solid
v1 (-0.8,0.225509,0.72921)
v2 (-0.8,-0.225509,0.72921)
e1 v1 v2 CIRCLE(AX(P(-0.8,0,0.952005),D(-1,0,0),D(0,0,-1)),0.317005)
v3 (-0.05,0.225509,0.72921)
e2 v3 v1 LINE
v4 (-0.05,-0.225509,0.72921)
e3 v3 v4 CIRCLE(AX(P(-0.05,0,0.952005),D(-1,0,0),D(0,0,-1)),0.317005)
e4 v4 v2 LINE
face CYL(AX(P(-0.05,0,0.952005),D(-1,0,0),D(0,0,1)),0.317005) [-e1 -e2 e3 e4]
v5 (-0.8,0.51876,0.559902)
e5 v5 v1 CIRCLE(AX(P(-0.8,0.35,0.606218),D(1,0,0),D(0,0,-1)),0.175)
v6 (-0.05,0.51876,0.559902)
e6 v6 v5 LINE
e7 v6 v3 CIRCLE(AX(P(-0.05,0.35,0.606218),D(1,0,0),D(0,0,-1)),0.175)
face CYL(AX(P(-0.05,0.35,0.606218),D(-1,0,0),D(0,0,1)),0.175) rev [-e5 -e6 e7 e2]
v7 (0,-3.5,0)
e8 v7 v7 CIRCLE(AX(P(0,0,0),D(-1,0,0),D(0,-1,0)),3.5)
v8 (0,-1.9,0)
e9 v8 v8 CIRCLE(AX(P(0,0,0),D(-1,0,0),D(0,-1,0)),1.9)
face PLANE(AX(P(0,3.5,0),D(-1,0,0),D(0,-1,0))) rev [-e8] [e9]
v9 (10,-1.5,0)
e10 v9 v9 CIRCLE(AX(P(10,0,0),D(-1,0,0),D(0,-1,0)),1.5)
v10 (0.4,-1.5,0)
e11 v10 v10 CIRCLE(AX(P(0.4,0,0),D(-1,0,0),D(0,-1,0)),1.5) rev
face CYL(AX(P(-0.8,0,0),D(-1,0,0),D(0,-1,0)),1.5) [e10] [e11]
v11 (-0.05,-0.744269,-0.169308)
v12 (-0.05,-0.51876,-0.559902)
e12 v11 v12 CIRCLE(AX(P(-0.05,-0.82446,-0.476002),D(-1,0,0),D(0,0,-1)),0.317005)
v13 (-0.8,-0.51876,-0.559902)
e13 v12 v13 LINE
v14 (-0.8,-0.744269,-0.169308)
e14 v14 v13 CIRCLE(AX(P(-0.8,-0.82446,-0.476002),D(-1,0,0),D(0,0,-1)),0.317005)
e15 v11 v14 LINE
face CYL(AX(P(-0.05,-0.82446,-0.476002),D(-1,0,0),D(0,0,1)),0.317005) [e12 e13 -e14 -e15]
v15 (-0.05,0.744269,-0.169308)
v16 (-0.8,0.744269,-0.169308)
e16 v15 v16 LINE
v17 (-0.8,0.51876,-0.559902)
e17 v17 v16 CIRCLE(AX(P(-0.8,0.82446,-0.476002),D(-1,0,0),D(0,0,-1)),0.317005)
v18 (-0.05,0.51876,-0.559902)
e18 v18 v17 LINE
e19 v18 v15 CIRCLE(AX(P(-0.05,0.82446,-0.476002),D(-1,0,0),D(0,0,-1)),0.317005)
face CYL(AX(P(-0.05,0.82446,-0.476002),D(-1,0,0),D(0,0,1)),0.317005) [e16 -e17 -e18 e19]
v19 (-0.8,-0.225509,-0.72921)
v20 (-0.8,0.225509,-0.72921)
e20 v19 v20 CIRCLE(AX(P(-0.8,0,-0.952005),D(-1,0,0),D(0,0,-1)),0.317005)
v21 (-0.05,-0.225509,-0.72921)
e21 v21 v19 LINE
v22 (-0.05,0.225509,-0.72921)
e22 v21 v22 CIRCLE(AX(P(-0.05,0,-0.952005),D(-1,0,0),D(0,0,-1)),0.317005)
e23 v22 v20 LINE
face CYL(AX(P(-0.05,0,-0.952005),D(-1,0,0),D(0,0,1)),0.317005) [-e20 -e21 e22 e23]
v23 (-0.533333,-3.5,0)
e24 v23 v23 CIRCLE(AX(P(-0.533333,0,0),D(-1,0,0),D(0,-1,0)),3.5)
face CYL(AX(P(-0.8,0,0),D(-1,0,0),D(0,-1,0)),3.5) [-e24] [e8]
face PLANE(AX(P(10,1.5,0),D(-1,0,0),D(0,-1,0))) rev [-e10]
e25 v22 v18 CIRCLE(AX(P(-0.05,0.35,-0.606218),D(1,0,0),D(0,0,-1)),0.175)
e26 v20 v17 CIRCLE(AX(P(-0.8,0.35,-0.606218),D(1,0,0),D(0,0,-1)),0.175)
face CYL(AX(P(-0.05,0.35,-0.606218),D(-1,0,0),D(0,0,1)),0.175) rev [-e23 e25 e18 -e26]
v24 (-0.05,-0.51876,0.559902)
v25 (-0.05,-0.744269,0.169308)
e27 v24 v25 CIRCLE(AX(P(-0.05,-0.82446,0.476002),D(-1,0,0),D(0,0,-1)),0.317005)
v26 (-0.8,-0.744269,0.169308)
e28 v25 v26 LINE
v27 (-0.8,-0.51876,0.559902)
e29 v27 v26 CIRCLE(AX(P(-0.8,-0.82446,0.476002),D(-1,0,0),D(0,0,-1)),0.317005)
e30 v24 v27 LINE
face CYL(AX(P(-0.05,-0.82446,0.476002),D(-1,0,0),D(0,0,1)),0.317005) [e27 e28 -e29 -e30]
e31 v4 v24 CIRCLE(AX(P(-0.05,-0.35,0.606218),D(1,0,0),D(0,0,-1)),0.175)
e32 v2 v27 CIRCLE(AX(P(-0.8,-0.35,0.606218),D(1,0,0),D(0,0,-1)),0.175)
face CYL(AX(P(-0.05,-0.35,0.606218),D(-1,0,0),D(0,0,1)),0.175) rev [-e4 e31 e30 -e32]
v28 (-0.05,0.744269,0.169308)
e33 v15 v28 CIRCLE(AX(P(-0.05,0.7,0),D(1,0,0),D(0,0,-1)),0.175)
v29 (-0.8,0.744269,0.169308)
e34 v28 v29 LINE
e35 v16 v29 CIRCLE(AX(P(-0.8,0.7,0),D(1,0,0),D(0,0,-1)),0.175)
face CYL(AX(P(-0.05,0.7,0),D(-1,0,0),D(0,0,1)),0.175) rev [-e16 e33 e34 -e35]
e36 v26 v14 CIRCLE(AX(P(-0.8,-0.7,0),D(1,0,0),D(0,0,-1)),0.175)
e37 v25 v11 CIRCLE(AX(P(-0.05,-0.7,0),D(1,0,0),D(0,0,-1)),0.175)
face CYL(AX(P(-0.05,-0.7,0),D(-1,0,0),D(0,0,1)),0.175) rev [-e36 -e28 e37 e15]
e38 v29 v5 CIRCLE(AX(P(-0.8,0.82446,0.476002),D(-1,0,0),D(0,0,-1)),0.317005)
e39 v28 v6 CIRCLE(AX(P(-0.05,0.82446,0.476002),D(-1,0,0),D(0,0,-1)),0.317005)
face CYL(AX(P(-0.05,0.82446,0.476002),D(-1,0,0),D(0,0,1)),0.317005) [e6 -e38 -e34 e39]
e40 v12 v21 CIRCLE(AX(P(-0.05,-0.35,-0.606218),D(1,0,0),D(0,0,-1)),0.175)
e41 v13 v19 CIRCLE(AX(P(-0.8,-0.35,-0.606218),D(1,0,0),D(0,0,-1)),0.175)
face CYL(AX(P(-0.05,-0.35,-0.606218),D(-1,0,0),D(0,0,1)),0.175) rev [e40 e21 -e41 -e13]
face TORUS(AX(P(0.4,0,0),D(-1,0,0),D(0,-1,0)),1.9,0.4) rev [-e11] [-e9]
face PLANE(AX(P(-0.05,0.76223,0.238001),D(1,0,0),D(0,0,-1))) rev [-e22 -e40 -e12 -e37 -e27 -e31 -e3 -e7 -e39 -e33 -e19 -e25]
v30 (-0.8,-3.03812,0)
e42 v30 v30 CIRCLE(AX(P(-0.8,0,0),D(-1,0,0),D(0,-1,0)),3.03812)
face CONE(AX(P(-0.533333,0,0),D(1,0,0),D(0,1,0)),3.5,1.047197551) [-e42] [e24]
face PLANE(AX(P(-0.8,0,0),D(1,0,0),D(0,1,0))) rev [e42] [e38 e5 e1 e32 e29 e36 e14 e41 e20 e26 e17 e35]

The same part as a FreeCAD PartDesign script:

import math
import FreeCAD as App
import Part
import Sketcher
from FreeCAD import Vector
Q = App.Units.Quantity


def edges_at(feature, points):
    """Names of the edges that pass closest to the given points."""
    edges = feature.Shape.Edges
    near = lambda p: min(range(len(edges)), key=lambda i: edges[i].distToShape(Part.Vertex(*p))[0])
    return sorted({f"Edge{near(p) + 1}" for p in points})

doc = App.newDocument("Part")
params = doc.addObject("Spreadsheet::Sheet", "Params")
for row, (alias, value) in enumerate([
    ("sketch1_width", "10 mm"),
    ("sketch1_height", "2 mm"),
    ("sketch1_width2", "10.8 mm"),
    ("sketch1_height2", "1.5 mm"),
    ("revolution_angle", "360 deg"),
    ("pocket1_length", "0.75 mm"),
    ("fillet_radius", "0.4 mm"),
], start=1):
    params.set(f"A{row}", alias)
    params.set(f"B{row}", "=" + value)
    params.setAlias(f"B{row}", alias)

body = doc.addObject("PartDesign::Body", "Body")

# Sketch on XY plane
sketch1 = doc.addObject("Sketcher::SketchObject", "Sketch")
body.addObject(sketch1)
sketch1.AttachmentSupport = (doc.XY_Plane, [""])
sketch1.MapMode = "FlatFace"
sketch1.addGeometry([
    Part.LineSegment(Vector(10, 1.5, 0), Vector(0, 1.5, 0)),  # 0
    Part.LineSegment(Vector(0, 1.5, 0), Vector(0, 3.5, 0)),  # 1
    Part.LineSegment(Vector(0, 3.5, 0), Vector(-0.5, 3.5, 0)),  # 2
    Part.LineSegment(Vector(-0.5, 3.5, 0), Vector(-0.8, 3, 0)),  # 3
    Part.LineSegment(Vector(-0.8, 3, 0), Vector(-0.8, 0, 0)),  # 4
    Part.LineSegment(Vector(-0.8, 0, 0), Vector(10, 0, 0)),  # 5
    Part.LineSegment(Vector(10, 0, 0), Vector(10, 1.5, 0)),  # 6
], False)
sketch1.addConstraint([
    Sketcher.Constraint("Coincident", 0, 2, 1, 1),
    Sketcher.Constraint("Coincident", 1, 2, 2, 1),
    Sketcher.Constraint("Coincident", 2, 2, 3, 1),
    Sketcher.Constraint("Coincident", 3, 2, 4, 1),
    Sketcher.Constraint("Coincident", 4, 2, 5, 1),
    Sketcher.Constraint("Coincident", 5, 2, 6, 1),
    Sketcher.Constraint("Coincident", 6, 2, 0, 1),
    Sketcher.Constraint("Horizontal", 0),
    Sketcher.Constraint("Vertical", 1),
    Sketcher.Constraint("Horizontal", 2),
    Sketcher.Constraint("Vertical", 4),
    Sketcher.Constraint("Horizontal", 5),
    Sketcher.Constraint("Vertical", 6),
    Sketcher.Constraint("PointOnObject", 0, 2, -2),
    Sketcher.Constraint("PointOnObject", 4, 2, -1),
    Sketcher.Constraint("DistanceX", 0, 2, 0, 1, 10.0),
    Sketcher.Constraint("DistanceY", 1, 1, 1, 2, 2.0),
    Sketcher.Constraint("Angle", 3, Q("-120 deg")),
    Sketcher.Constraint("DistanceX", 5, 1, 5, 2, 10.8),
    Sketcher.Constraint("DistanceY", 6, 1, 6, 2, 1.5),
    Sketcher.Constraint("DistanceY", 4, 2, 4, 1, 3.03812),
])
sketch1.setExpression("Constraints[15]", "Params.sketch1_width")
sketch1.setExpression("Constraints[16]", "Params.sketch1_height")
sketch1.setExpression("Constraints[18]", "Params.sketch1_width2")
sketch1.setExpression("Constraints[19]", "Params.sketch1_height2")
revolution = doc.addObject("PartDesign::Revolution", "Revolution")
body.addObject(revolution)
revolution.Profile = sketch1
revolution.ReferenceAxis = (sketch1, ["H_Axis"])
revolution.setExpression("Angle", "Params.revolution_angle")

# Sketch on YZ plane
sketch2 = doc.addObject("Sketcher::SketchObject", "Sketch001")
body.addObject(sketch2)
sketch2.AttachmentSupport = (doc.YZ_Plane, [""])
sketch2.MapMode = "FlatFace"
sketch2.AttachmentOffset = App.Placement(Vector(0, 0, -0.8), App.Rotation())
sketch2.addGeometry([
    Part.ArcOfCircle(Part.Circle(Vector(0.7, 0, 0), Vector(0, 0, 1), 0.17), math.radians(-75), math.radians(75)),  # 0
    Part.ArcOfCircle(Part.Circle(Vector(0.82, 0.48, 0), Vector(0, 0, 1), 0.32), math.radians(165), math.radians(255)),  # 1
    Part.ArcOfCircle(Part.Circle(Vector(0.35, 0.61, 0), Vector(0, 0, 1), 0.17), math.radians(-15), math.radians(135)),  # 2
    Part.ArcOfCircle(Part.Circle(Vector(0, 0.95, 0), Vector(0, 0, 1), 0.32), math.radians(-135), math.radians(-45)),  # 3
    Part.ArcOfCircle(Part.Circle(Vector(-0.35, 0.61, 0), Vector(0, 0, 1), 0.17), math.radians(45), math.radians(195)),  # 4
    Part.ArcOfCircle(Part.Circle(Vector(-0.82, 0.48, 0), Vector(0, 0, 1), 0.32), math.radians(-75), math.radians(15)),  # 5
    Part.ArcOfCircle(Part.Circle(Vector(-0.7, 0, 0), Vector(0, 0, 1), 0.17), math.radians(105), math.radians(255)),  # 6
    Part.ArcOfCircle(Part.Circle(Vector(-0.82, -0.48, 0), Vector(0, 0, 1), 0.32), math.radians(-15), math.radians(75)),  # 7
    Part.ArcOfCircle(Part.Circle(Vector(-0.35, -0.61, 0), Vector(0, 0, 1), 0.17), math.radians(165), math.radians(315)),  # 8
    Part.ArcOfCircle(Part.Circle(Vector(0, -0.95, 0), Vector(0, 0, 1), 0.32), math.radians(45), math.radians(135)),  # 9
    Part.ArcOfCircle(Part.Circle(Vector(0.35, -0.61, 0), Vector(0, 0, 1), 0.17), math.radians(-135), math.radians(15)),  # 10
    Part.ArcOfCircle(Part.Circle(Vector(0.82, -0.48, 0), Vector(0, 0, 1), 0.32), math.radians(105), math.radians(195)),  # 11
], False)
sketch2.addConstraint([
    Sketcher.Constraint("Tangent", 0, 2, 1, 2),
    Sketcher.Constraint("Tangent", 1, 1, 2, 1),
    Sketcher.Constraint("Tangent", 2, 2, 3, 2),
    Sketcher.Constraint("Tangent", 3, 1, 4, 1),
    Sketcher.Constraint("Tangent", 4, 2, 5, 2),
    Sketcher.Constraint("Tangent", 5, 1, 6, 1),
    Sketcher.Constraint("Tangent", 6, 2, 7, 2),
    Sketcher.Constraint("Tangent", 7, 1, 8, 1),
    Sketcher.Constraint("Tangent", 8, 2, 9, 2),
    Sketcher.Constraint("Tangent", 9, 1, 10, 1),
    Sketcher.Constraint("Tangent", 10, 2, 11, 2),
    Sketcher.Constraint("Tangent", 11, 1, 0, 1),
    Sketcher.Constraint("Equal", 0, 2),
    Sketcher.Constraint("Equal", 1, 3),
    Sketcher.Constraint("Equal", 2, 4),
    Sketcher.Constraint("Equal", 3, 5),
    Sketcher.Constraint("Equal", 4, 6),
    Sketcher.Constraint("Equal", 5, 7),
    Sketcher.Constraint("Equal", 6, 8),
    Sketcher.Constraint("Equal", 7, 9),
    Sketcher.Constraint("Equal", 8, 10),
    Sketcher.Constraint("Equal", 9, 11),
    Sketcher.Constraint("Symmetric", 0, 3, 6, 3, -1, 1),
    Sketcher.Constraint("Symmetric", 2, 3, 8, 3, -1, 1),
    Sketcher.Constraint("Symmetric", 4, 3, 10, 3, -1, 1),
    Sketcher.Constraint("Symmetric", 2, 3, 4, 3, -2),
    Sketcher.Constraint("PointOnObject", 0, 3, -1),
    Sketcher.Constraint("Radius", 0, 0.175),
    Sketcher.Constraint("DistanceX", -1, 1, 0, 3, 0.7),
    Sketcher.Constraint("DistanceX", 4, 3, 2, 3, 0.7),
    Sketcher.Constraint("Radius", 1, 0.317005),
    Sketcher.Constraint("DistanceY", -1, 1, 1, 1, 0.559902),
])
pocket1 = doc.addObject("PartDesign::Pocket", "Pocket")
body.addObject(pocket1)
pocket1.Profile = sketch2
pocket1.setExpression("Length", "Params.pocket1_length")
pocket1.Reversed = True
doc.recompute()

fillet = doc.addObject("PartDesign::Fillet", "Fillet")
body.addObject(fillet)
fillet.Base = (pocket1, edges_at(pocket1, [(0, 1.5, 0)]))
fillet.setExpression("Radius", "Params.fillet_radius")

doc.recompute()
